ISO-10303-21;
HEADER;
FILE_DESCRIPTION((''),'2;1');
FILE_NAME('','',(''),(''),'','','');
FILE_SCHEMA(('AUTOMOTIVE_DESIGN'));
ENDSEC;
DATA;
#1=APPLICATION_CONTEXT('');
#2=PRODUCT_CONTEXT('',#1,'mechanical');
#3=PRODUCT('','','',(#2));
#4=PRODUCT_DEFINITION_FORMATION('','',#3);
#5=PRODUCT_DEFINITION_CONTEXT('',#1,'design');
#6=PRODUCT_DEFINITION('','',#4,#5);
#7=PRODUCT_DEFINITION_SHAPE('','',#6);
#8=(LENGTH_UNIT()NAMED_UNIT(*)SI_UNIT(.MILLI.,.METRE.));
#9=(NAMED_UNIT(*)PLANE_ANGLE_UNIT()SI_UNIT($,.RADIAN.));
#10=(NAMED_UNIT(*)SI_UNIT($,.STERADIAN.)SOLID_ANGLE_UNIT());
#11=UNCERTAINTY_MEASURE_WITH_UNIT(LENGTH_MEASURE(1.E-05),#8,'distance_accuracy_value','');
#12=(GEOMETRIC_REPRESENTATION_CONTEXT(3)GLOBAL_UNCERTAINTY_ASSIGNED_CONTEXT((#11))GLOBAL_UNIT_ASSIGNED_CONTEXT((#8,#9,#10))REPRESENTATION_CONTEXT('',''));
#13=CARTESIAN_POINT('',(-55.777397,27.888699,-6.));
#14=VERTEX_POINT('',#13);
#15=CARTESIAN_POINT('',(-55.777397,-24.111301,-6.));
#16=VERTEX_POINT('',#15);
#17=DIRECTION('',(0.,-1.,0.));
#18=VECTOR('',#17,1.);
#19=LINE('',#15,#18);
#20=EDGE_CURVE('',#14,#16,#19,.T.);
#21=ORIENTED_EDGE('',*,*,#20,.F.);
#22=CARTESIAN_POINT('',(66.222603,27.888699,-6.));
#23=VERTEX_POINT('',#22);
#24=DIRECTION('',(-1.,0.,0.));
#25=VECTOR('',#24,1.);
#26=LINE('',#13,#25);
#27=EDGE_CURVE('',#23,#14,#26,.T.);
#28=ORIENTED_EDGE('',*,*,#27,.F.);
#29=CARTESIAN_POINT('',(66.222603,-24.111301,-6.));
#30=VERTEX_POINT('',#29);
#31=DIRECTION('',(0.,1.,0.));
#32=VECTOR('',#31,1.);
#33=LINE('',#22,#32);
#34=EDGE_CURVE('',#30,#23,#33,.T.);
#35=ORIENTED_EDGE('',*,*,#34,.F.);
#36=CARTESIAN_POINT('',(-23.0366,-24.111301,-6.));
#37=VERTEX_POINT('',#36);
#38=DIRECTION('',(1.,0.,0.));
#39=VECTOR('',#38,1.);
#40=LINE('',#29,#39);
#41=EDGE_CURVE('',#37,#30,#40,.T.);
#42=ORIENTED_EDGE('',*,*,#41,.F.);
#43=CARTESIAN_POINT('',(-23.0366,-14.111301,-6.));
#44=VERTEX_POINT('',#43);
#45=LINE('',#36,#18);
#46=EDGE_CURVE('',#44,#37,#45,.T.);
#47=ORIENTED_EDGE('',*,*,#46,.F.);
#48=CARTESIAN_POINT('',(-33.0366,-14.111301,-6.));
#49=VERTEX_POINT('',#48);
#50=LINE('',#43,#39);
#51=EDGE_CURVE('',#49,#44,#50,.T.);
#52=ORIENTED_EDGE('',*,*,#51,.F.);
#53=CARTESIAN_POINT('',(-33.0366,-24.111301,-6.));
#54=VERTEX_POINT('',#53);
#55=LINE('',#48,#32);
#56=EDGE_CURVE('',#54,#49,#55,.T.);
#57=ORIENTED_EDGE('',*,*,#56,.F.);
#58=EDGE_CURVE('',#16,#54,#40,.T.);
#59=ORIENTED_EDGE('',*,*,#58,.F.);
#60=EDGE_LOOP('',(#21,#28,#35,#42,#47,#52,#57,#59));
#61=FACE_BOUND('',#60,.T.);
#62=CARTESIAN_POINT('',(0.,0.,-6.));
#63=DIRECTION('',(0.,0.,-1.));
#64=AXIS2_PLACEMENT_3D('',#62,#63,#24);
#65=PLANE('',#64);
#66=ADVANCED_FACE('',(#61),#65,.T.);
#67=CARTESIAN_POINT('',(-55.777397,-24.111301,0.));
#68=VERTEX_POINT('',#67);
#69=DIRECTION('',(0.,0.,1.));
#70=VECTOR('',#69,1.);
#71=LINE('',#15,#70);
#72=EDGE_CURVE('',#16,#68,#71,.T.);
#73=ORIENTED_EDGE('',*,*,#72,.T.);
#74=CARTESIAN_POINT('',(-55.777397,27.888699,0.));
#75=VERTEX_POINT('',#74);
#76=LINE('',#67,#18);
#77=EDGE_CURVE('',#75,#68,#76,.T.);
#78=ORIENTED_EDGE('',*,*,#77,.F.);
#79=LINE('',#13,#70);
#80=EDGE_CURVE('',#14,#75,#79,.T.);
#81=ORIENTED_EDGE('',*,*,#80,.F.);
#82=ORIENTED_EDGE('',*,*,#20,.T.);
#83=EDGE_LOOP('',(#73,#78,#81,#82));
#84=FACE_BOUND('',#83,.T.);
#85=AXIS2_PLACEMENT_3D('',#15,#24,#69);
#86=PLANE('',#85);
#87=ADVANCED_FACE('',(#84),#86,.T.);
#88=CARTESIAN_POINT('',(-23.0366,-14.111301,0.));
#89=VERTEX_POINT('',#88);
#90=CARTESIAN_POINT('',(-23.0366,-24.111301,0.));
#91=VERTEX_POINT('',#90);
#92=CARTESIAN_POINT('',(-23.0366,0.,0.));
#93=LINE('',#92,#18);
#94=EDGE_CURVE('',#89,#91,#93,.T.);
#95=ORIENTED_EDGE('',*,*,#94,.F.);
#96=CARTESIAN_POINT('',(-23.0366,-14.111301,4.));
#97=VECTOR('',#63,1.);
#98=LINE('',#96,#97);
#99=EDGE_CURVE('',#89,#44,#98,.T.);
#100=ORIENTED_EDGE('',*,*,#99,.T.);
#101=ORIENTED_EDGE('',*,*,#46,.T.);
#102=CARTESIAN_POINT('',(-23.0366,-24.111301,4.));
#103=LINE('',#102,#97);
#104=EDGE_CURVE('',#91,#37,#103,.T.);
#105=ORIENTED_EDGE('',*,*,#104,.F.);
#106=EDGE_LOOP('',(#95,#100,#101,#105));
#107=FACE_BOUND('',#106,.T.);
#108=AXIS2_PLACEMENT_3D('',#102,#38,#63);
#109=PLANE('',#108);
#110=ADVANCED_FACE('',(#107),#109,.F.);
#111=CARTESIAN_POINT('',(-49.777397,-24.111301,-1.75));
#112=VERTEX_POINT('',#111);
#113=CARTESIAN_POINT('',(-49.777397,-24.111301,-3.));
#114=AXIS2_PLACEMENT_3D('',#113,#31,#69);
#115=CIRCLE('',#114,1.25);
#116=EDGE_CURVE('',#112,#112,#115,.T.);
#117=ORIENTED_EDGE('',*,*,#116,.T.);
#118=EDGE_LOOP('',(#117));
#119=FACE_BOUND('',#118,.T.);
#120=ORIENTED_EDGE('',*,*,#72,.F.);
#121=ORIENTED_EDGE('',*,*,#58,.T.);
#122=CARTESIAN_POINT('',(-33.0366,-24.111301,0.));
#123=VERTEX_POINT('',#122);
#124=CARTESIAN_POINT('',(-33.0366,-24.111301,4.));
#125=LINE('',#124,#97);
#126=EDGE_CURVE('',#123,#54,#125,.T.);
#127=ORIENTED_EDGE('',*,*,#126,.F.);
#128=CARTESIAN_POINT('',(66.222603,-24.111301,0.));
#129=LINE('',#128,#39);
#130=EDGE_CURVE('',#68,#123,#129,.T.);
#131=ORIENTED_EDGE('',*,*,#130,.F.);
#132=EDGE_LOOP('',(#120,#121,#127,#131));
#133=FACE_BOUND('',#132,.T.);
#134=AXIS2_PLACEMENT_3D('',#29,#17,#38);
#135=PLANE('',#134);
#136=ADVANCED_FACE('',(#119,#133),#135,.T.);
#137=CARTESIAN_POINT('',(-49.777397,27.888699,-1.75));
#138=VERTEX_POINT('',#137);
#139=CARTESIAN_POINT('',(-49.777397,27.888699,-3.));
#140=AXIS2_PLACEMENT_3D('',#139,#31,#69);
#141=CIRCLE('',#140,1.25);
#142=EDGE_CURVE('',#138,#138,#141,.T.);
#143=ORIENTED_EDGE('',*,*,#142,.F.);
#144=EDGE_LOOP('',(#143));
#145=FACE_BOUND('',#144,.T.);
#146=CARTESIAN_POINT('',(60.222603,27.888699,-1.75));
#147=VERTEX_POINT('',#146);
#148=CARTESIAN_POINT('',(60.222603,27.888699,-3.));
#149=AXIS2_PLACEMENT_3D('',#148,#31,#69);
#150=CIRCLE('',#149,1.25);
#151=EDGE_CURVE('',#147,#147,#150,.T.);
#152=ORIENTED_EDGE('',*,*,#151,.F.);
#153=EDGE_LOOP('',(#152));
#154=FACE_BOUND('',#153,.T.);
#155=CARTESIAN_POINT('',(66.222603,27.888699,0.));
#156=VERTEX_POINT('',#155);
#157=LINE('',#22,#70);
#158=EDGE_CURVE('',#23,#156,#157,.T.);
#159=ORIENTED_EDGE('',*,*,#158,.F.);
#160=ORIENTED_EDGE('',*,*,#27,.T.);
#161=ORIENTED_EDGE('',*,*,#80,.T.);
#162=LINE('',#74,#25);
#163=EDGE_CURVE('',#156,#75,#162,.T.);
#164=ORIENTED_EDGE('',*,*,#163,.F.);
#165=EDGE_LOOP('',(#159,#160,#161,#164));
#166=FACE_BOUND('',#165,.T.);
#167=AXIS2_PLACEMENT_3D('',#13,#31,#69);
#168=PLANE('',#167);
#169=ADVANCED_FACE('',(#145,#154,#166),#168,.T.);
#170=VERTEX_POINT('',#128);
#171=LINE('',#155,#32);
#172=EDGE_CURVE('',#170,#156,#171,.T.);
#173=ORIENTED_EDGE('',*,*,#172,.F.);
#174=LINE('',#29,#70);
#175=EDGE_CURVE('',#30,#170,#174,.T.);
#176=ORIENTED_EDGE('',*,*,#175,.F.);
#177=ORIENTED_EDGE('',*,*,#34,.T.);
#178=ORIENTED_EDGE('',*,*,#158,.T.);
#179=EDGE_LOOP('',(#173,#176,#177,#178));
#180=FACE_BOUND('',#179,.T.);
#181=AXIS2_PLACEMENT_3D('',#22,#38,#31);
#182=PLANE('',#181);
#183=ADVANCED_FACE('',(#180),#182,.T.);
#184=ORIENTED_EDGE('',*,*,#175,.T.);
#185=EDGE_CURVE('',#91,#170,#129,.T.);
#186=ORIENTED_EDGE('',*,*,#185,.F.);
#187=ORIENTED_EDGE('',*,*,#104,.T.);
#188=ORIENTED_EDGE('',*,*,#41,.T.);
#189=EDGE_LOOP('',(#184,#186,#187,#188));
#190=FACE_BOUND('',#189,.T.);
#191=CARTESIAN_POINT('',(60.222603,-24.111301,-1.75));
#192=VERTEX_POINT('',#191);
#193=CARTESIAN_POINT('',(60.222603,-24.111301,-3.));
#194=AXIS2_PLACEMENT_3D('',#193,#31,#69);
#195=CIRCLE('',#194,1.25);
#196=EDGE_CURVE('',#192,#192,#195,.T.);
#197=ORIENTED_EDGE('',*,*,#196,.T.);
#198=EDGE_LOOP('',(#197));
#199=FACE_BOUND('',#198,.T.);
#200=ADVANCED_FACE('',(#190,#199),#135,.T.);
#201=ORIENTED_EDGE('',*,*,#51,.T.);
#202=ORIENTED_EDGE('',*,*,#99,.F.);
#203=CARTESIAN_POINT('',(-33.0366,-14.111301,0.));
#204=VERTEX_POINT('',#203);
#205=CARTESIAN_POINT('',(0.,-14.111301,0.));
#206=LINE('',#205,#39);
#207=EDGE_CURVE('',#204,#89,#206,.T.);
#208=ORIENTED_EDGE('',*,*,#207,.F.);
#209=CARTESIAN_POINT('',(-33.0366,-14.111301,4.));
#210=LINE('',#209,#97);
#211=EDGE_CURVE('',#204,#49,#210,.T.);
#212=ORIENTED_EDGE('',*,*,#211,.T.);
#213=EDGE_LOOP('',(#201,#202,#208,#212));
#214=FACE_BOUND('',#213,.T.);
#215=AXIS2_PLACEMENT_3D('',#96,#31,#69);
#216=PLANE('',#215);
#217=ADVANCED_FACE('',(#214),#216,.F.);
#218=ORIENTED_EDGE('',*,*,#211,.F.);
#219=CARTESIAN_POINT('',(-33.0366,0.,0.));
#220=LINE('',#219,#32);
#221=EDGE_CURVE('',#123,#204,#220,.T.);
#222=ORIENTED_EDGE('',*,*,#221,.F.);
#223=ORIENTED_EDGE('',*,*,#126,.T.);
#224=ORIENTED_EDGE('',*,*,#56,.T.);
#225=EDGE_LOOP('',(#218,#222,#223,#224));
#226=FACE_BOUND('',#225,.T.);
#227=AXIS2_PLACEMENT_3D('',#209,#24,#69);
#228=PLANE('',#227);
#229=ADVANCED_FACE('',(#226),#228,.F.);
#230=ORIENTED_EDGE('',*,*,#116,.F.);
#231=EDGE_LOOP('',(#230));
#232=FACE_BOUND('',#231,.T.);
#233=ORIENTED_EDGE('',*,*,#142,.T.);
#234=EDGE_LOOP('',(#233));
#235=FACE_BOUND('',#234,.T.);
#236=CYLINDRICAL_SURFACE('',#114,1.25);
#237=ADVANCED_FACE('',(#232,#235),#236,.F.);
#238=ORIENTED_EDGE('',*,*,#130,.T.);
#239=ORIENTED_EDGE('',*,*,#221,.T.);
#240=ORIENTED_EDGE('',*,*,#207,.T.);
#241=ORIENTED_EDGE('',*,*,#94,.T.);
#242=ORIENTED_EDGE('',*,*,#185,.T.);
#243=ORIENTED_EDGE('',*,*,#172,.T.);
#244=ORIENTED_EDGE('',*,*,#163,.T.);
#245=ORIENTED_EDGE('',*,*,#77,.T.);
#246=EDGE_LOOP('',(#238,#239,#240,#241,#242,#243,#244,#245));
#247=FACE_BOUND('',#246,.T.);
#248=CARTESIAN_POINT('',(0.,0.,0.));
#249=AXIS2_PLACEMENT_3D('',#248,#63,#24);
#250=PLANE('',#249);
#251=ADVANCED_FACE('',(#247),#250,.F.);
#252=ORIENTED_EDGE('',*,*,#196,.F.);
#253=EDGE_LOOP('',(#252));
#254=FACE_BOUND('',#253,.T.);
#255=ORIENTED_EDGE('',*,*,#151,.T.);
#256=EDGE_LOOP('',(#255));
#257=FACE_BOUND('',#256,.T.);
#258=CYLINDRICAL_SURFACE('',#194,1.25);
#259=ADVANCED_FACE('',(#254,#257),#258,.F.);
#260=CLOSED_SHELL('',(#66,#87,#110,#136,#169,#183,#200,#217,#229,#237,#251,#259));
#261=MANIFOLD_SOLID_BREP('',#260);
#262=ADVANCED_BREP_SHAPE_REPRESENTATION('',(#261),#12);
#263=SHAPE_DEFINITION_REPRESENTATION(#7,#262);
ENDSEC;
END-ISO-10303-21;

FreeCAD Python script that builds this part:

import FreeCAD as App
import Part
import Sketcher

V = App.Vector


def add_polygon(sketch, points):
    """Adds a closed chain of lines whose ends are joined by coincident constraints."""
    first, n = sketch.GeometryCount, len(points)
    for a, b in zip(points, points[1:] + points[:1]):
        sketch.addGeometry(Part.LineSegment(App.Vector(*a, 0), App.Vector(*b, 0)), False)
    for i in range(n):
        sketch.addConstraint(Sketcher.Constraint("Coincident", first + i, 2, first + (i + 1) % n, 1))

doc = App.newDocument("Part")
body = doc.addObject("PartDesign::Body", "Body")

# Sketch on XY plane
sketch1 = body.newObject("Sketcher::SketchObject", "Sketch")
sketch1.AttachmentSupport = (doc.getObject("XY_Plane"), [""])
sketch1.MapMode = "FlatFace"
add_polygon(sketch1, [(-56, 28), (-56, -24), (66, -24), (66, 28)])  # lines 0-3
sketch1.addConstraint([
    Sketcher.Constraint("Vertical", 0),
    Sketcher.Constraint("Horizontal", 1),
    Sketcher.Constraint("Vertical", 2),
    Sketcher.Constraint("Horizontal", 3),
    Sketcher.Constraint("DistanceX", 1, 1, 1, 2, 122.0),
    Sketcher.Constraint("DistanceY", 0, 2, 0, 1, 52.0),
    Sketcher.Constraint("DistanceY", 0, 2, -1, 1, 24.111301),
    Sketcher.Constraint("DistanceX", 0, 2, -1, 1, 55.777397),
])
pad1 = body.newObject("PartDesign::Pad", "Pad")
pad1.Profile = sketch1
pad1.Length = 6
pad1.Reversed = True

# Sketch on XZ plane
sketch2 = body.newObject("Sketcher::SketchObject", "Sketch001")
sketch2.AttachmentSupport = (doc.getObject("XZ_Plane"), [""])
sketch2.MapMode = "FlatFace"
sketch2.AttachmentOffset = App.Placement(V(0, 0, -27.888699), App.Rotation())
sketch2.addGeometry([
    Part.Circle(V(-49.8, -3, 0), V(0, 0, 1), 1.2),
    Part.Circle(V(60.2, -3, 0), V(0, 0, 1), 1.2),
], False)
sketch2.addConstraint([
    Sketcher.Constraint("Equal", 0, 1),
    Sketcher.Constraint("Horizontal", 0, 3, 1, 3),
    Sketcher.Constraint("Diameter", 0, 2.5),
    Sketcher.Constraint("DistanceY", 0, 3, -1, 1, 3.0),
    Sketcher.Constraint("DistanceX", 0, 3, 1, 3, 110.0),
    Sketcher.Constraint("DistanceX", 0, 3, -1, 1, 49.777397),
])
pocket1 = body.newObject("PartDesign::Pocket", "Pocket")
pocket1.Profile = sketch2
pocket1.Type = "ThroughAll"
pocket1.Reversed = True

# Sketch on XY plane
sketch3 = body.newObject("Sketcher::SketchObject", "Sketch002")
sketch3.AttachmentSupport = (doc.getObject("XY_Plane"), [""])
sketch3.MapMode = "FlatFace"
sketch3.AttachmentOffset = App.Placement(V(0, 0, -6), App.Rotation())
add_polygon(sketch3, [(-23, -14), (-23, -24), (-33, -24), (-33, -14)])  # lines 0-3
sketch3.addConstraint([
    Sketcher.Constraint("Vertical", 0),
    Sketcher.Constraint("Horizontal", 1),
    Sketcher.Constraint("Vertical", 2),
    Sketcher.Constraint("Horizontal", 3),
    Sketcher.Constraint("Equal", 3, 0),
    Sketcher.Constraint("DistanceX", 1, 2, 1, 1, 10.0),
    Sketcher.Constraint("DistanceX", 0, 2, -1, 1, 23.0366),
    Sketcher.Constraint("DistanceY", 0, 2, -1, 1, 24.111301),
])
pocket2 = body.newObject("PartDesign::Pocket", "Pocket001")
pocket2.Profile = sketch3
pocket2.Length = 10
pocket2.Reversed = True

doc.recompute()
